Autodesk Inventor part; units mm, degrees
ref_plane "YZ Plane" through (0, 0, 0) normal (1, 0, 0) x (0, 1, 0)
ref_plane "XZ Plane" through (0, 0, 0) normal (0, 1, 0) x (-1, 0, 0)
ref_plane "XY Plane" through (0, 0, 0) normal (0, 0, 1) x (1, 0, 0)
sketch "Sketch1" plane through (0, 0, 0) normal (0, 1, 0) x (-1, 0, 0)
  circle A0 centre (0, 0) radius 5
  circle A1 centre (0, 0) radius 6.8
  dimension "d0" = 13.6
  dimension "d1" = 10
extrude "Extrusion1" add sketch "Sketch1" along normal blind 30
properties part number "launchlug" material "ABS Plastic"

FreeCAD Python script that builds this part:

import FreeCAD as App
import Part
import Sketcher
from FreeCAD import Vector
Q = App.Units.Quantity

doc = App.newDocument("Part")
body = doc.addObject("PartDesign::Body", "Body")

# Sketch on XZ plane
sketch1 = doc.addObject("Sketcher::SketchObject", "Sketch")
body.addObject(sketch1)
sketch1.AttachmentSupport = (doc.XZ_Plane, [""])
sketch1.MapMode = "FlatFace"
sketch1.addGeometry(Part.Circle(Vector(0, 0, 0), Vector(0, 0, 1), 6.8), False)
sketch1.addGeometry(Part.Circle(Vector(0, 0, 0), Vector(0, 0, 1), 5), False)
sketch1.addConstraint(Sketcher.Constraint("Coincident", 0, 3, -1, 1))
sketch1.addConstraint(Sketcher.Constraint("Coincident", 1, 3, -1, 1))
sketch1.addConstraint(Sketcher.Constraint("Diameter", 1, Q("10 mm")))
sketch1.addConstraint(Sketcher.Constraint("Diameter", 0, Q("13.6 mm")))
pad1 = doc.addObject("PartDesign::Pad", "Pad")
body.addObject(pad1)
pad1.Profile = sketch1
pad1.Length = 30
pad1.Reversed = True

doc.recompute()
